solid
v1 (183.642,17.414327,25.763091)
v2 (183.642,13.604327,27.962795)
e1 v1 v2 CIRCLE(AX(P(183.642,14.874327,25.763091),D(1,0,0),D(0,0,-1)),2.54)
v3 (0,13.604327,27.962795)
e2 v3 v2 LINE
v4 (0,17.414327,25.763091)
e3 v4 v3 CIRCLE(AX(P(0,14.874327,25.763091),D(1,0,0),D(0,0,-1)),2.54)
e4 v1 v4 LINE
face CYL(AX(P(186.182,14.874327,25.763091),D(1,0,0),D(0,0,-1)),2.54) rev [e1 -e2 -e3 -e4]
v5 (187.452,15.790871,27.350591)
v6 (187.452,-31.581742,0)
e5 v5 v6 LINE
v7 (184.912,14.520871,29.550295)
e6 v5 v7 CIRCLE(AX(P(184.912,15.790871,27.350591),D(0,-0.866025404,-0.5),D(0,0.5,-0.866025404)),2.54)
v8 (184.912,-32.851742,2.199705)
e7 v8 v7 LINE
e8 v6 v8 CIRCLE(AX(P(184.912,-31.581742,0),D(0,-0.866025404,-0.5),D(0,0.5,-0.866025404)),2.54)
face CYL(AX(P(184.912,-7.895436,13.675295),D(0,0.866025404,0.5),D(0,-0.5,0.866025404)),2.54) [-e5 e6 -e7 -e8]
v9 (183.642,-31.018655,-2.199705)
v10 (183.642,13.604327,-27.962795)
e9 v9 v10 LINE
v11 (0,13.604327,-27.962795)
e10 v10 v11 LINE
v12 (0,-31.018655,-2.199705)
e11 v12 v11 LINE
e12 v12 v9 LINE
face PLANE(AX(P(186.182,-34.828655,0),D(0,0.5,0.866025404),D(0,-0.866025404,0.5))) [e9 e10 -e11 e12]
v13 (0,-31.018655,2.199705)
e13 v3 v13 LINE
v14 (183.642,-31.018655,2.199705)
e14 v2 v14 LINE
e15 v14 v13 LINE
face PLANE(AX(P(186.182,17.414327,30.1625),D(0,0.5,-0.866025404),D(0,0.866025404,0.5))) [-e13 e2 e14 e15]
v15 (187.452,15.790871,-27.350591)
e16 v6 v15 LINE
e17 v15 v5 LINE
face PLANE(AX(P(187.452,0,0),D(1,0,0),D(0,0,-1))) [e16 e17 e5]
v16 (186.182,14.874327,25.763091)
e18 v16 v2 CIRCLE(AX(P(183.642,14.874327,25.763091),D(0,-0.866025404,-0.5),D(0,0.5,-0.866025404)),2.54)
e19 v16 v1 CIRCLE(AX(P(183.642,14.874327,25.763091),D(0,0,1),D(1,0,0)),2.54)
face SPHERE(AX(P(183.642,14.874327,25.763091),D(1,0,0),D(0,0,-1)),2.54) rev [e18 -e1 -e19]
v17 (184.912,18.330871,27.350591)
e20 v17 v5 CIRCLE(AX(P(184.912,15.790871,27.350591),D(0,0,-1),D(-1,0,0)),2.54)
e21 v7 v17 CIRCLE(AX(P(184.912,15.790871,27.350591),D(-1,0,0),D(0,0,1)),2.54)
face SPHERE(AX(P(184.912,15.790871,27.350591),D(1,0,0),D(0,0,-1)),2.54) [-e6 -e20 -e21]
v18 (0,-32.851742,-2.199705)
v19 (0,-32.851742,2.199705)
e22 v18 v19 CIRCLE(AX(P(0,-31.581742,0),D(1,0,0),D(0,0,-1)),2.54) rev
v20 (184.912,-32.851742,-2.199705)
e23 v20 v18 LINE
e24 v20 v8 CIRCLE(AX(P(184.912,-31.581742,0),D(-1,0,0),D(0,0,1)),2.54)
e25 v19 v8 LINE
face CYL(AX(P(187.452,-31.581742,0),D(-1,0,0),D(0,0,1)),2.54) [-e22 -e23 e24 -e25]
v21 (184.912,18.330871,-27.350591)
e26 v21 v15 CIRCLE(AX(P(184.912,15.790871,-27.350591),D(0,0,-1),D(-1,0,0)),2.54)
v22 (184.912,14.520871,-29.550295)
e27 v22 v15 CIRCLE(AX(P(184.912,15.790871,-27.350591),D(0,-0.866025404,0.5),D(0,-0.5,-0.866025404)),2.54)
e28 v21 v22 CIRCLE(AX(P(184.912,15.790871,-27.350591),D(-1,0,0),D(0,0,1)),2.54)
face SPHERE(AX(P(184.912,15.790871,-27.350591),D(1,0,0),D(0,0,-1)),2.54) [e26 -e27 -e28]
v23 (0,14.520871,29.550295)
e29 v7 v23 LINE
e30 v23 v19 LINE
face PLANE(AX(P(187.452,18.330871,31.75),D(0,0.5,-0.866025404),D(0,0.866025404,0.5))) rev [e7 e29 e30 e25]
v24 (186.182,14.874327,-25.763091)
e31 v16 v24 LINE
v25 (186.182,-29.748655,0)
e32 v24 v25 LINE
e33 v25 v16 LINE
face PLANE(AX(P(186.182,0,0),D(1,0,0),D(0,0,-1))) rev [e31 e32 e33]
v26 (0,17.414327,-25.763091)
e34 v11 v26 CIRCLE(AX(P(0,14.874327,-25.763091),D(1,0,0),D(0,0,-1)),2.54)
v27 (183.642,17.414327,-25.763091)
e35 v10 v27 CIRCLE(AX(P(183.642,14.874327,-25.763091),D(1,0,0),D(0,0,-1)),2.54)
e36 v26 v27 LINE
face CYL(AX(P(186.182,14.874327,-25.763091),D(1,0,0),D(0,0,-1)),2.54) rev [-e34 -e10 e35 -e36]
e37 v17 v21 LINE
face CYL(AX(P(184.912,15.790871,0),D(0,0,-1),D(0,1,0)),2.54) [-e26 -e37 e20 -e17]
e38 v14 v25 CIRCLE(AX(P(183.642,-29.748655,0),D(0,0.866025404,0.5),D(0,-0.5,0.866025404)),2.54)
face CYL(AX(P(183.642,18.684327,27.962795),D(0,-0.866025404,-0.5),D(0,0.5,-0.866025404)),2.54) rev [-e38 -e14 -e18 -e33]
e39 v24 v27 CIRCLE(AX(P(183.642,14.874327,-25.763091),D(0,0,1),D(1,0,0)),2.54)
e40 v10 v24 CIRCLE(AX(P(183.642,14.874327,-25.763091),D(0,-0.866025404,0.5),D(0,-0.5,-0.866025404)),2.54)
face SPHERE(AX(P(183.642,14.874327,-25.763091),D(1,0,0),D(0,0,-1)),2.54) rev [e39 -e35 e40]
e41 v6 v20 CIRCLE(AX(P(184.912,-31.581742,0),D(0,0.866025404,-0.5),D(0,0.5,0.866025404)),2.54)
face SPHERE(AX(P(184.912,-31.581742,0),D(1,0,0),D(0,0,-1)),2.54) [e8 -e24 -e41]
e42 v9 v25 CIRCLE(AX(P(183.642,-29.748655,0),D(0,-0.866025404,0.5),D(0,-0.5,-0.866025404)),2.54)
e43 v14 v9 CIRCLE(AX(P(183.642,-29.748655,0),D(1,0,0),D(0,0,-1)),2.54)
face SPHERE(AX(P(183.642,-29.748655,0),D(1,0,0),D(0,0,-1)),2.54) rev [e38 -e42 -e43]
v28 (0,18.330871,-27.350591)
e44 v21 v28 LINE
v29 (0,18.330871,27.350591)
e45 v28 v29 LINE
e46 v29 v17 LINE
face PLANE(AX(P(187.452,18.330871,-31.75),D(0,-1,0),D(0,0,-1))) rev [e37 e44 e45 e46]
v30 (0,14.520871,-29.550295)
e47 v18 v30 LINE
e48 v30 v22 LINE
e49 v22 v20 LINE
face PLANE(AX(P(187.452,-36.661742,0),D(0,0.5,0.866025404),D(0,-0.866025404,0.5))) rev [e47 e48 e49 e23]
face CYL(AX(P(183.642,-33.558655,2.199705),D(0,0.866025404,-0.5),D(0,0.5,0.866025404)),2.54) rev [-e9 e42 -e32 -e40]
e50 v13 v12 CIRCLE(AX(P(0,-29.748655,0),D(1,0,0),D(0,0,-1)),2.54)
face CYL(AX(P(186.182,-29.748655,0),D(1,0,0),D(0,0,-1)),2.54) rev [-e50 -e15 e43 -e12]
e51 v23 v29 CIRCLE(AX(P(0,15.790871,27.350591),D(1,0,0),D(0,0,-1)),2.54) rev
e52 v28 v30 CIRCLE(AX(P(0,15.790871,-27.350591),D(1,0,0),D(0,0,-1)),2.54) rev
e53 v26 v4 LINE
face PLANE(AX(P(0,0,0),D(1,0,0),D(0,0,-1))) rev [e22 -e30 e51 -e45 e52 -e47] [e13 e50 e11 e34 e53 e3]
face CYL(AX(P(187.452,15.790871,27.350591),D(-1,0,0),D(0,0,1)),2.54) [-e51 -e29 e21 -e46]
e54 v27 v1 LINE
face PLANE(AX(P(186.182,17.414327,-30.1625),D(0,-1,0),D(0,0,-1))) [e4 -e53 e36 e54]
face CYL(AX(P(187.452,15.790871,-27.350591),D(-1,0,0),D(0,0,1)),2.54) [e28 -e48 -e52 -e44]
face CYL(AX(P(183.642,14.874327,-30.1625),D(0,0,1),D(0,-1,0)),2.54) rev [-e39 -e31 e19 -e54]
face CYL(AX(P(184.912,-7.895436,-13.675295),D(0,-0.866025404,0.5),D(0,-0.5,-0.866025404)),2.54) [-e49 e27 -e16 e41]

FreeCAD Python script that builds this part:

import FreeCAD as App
import Part
import Sketcher

V = App.Vector
Q = App.Units.Quantity


def edges_at(feature, points):
    """Names of the edges that pass closest to the given points."""
    edges = feature.Shape.Edges
    near = lambda p: min(range(len(edges)), key=lambda i: edges[i].distToShape(Part.Vertex(*p))[0])
    return sorted({f"Edge{near(p) + 1}" for p in points})


def add_polygon(sketch, points):
    """Adds a closed chain of lines whose ends are joined by coincident constraints."""
    first, n = sketch.GeometryCount, len(points)
    for a, b in zip(points, points[1:] + points[:1]):
        sketch.addGeometry(Part.LineSegment(App.Vector(*a, 0), App.Vector(*b, 0)), False)
    for i in range(n):
        sketch.addConstraint(Sketcher.Constraint("Coincident", first + i, 2, first + (i + 1) % n, 1))

doc = App.newDocument("Part")
body = doc.addObject("PartDesign::Body", "Body")

sketch1 = body.newObject("Sketcher::SketchObject", "Sketch")
sketch1.AttachmentSupport = (doc.getObject("YZ_Plane"), [""])
sketch1.MapMode = "FlatFace"
add_polygon(sketch1, [(18.330871, -31.75), (18.330871, 31.75), (-36.661742, 0)])
sketch1.addConstraint(Sketcher.Constraint("Vertical", 0))
sketch1.addConstraint(Sketcher.Constraint("PointOnObject", 1, 2, -1))
sketch1.addConstraint(Sketcher.Constraint("Equal", 1, 2))
sketch1.addConstraint(Sketcher.Constraint("DistanceY", 0, 1, 0, 2, Q("2.5 in")))
sketch1.addConstraint(Sketcher.Constraint("Angle", 1, Q("-150 deg")))
sketch1.addConstraint(Sketcher.Constraint("DistanceX", -1, 1, 0, 2, Q("18.330871 mm")))
pad1 = body.newObject("PartDesign::Pad", "Pad")
pad1.Profile = sketch1
pad1.Length = Q("7.38 in")

sketch2 = body.newObject("Sketcher::SketchObject", "Sketch001")
sketch2.AttachmentSupport = (doc.getObject("YZ_Plane"), [""])
sketch2.MapMode = "FlatFace"
add_polygon(sketch2, [(17.414327, -30.1625), (17.414327, 30.1625), (-34.828655, 0)])
sketch2.addConstraint(Sketcher.Constraint("Vertical", 0))
sketch2.addConstraint(Sketcher.Constraint("PointOnObject", 1, 2, -1))
sketch2.addConstraint(Sketcher.Constraint("Equal", 1, 2))
sketch2.addConstraint(Sketcher.Constraint("Angle", 1, Q("-150 deg")))
sketch2.addConstraint(Sketcher.Constraint("DistanceY", 0, 1, 0, 2, Q("2.375 in")))
sketch2.addConstraint(Sketcher.Constraint("DistanceX", -1, 1, 0, 2, Q("17.414327 mm")))
pocket1 = body.newObject("PartDesign::Pocket", "Pocket")
pocket1.Profile = sketch2
pocket1.Length = Q("7.33 in")
pocket1.Reversed = True
doc.recompute()

fillet = body.newObject("PartDesign::Fillet", "Fillet")
fillet.Base = (pocket1, edges_at(pocket1, [
    (93.091, -34.829, 0),
    (93.091, 17.414, -30.163),
    (93.091, 17.414, 30.163),
    (93.726, -36.662, 0),
    (93.726, 18.331, 31.75),
    (93.726, 18.331, -31.75),
]))
fillet.Radius = Q("0.1 in")
doc.recompute()

fillet2 = body.newObject("PartDesign::Fillet", "Fillet001")
fillet2.Base = (fillet, edges_at(fillet, [
    (186.182, -8.707, 15.081),
    (186.182, -8.707, -15.081),
    (186.182, 17.414, 0),
    (186.182, 16.144, -27.963),
    (186.182, 16.144, 27.963),
    (186.182, -32.289, 0),
    (187.452, -9.165, -15.875),
    (187.452, -9.165, 15.875),
    (187.452, 18.331, 0),
    (187.452, 17.061, -29.55),
    (187.452, 17.061, 29.55),
    (187.452, -34.122, 0),
]))
fillet2.Radius = Q("0.1 in")

doc.recompute()
